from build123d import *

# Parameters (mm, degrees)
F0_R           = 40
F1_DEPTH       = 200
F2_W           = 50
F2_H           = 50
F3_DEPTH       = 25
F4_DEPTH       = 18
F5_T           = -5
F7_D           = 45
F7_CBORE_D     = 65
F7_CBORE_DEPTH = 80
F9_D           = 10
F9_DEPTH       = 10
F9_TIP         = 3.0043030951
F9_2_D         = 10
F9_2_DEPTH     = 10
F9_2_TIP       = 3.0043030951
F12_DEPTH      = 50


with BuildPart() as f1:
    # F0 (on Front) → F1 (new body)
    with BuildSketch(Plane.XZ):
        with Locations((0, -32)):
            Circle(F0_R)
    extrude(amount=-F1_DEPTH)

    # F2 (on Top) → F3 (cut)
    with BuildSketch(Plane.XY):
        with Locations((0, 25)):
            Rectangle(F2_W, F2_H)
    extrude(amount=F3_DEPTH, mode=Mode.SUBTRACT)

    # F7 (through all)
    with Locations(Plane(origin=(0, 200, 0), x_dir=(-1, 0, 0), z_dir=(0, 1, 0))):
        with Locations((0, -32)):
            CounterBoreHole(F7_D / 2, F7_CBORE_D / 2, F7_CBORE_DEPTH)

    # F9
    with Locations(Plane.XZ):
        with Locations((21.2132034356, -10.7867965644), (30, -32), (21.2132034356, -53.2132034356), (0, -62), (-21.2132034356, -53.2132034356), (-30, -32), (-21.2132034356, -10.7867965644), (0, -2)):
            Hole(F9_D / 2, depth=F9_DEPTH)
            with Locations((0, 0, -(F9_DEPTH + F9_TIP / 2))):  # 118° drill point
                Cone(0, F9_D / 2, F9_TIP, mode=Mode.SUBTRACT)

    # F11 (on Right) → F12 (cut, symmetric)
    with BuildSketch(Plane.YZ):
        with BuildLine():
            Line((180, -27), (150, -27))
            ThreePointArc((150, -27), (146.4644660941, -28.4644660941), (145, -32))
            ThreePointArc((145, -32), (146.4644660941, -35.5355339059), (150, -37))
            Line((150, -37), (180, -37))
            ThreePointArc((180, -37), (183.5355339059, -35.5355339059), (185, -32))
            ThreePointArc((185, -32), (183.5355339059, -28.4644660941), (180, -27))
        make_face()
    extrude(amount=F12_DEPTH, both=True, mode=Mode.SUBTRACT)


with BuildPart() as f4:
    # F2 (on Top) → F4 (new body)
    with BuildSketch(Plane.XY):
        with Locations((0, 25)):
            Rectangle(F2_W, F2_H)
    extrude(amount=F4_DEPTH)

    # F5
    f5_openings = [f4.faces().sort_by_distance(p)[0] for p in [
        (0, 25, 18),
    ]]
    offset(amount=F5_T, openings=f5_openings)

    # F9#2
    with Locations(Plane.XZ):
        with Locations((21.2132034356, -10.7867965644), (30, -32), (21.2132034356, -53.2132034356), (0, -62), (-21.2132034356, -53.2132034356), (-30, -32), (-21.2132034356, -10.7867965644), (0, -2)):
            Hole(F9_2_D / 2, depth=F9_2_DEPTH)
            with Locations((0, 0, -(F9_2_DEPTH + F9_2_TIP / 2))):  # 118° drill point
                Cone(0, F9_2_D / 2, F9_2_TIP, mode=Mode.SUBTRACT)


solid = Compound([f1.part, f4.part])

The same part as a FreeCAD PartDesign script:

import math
import FreeCAD as App
import Part
import Sketcher
Q = App.Units.Quantity


def faces_at(feature, points):
    """Names of the faces that lie closest to the given points."""
    faces = feature.Shape.Faces
    near = lambda p: min(range(len(faces)), key=lambda i: faces[i].distToShape(Part.Vertex(*p))[0])
    return sorted({f"Face{near(p) + 1}" for p in points})


def add_polygon(sketch, points):
    """Adds a closed chain of lines whose ends are joined by coincident constraints."""
    first, n = sketch.GeometryCount, len(points)
    for a, b in zip(points, points[1:] + points[:1]):
        sketch.addGeometry(Part.LineSegment(App.Vector(*a, 0), App.Vector(*b, 0)), False)
    for i in range(n):
        sketch.addConstraint(Sketcher.Constraint("Coincident", first + i, 2, first + (i + 1) % n, 1))

doc = App.newDocument("Part")
params = doc.addObject("Spreadsheet::Sheet", "Params")
for row, (alias, value) in enumerate([
    ("sketch1_diameter", "80 mm"),
    ("pad1_length", "200 mm"),
    ("sketch2_width", "50 mm"),
    ("pocket1_length", "25 mm"),
    ("sketch3_diameter", "45 mm"),
    ("hole_diameter", "45 mm"),
    ("hole_cbore_diameter", "65 mm"),
    ("hole_cbore_depth", "80 mm"),
    ("sketch4_diameter", "10 mm"),
    ("hole2_diameter", "10 mm"),
    ("hole2_depth", "10 mm"),
    ("sketch5_radius", "5 mm"),
    ("sketch5_width", "30 mm"),
    ("pocket2_length", "100 mm"),
    ("sketch6_width", "50 mm"),
    ("pad2_length", "18 mm"),
    ("thickness_wall", "5 mm"),
    ("sketch7_diameter", "10 mm"),
    ("hole3_diameter", "10 mm"),
    ("hole3_depth", "10 mm"),
], start=1):
    params.set(f"A{row}", alias)
    params.set(f"B{row}", "=" + value)
    params.setAlias(f"B{row}", alias)

body = doc.addObject("PartDesign::Body", "Body")

# Sketch on XZ plane
sketch1 = doc.addObject("Sketcher::SketchObject", "Sketch")
body.addObject(sketch1)
sketch1.AttachmentSupport = (doc.XZ_Plane, [""])
sketch1.MapMode = "FlatFace"
sketch1.addGeometry(Part.Circle(App.Vector(0, -32, 0), App.Vector(0, 0, 1), 40), False)
sketch1.addConstraint([
    Sketcher.Constraint("PointOnObject", 0, 3, -2),
    Sketcher.Constraint("Diameter", 0, Q("80 mm")),
    Sketcher.Constraint("DistanceY", 0, 3, -1, 1, Q("32 mm")),
])
sketch1.setExpression("Constraints[1]", "Params.sketch1_diameter")
pad1 = doc.addObject("PartDesign::Pad", "Pad")
body.addObject(pad1)
pad1.Profile = sketch1
pad1.setExpression("Length", "Params.pad1_length")
pad1.Reversed = True

# Sketch on XY plane
sketch2 = doc.addObject("Sketcher::SketchObject", "Sketch001")
body.addObject(sketch2)
sketch2.AttachmentSupport = (doc.XY_Plane, [""])
sketch2.MapMode = "FlatFace"
add_polygon(sketch2, [(-25, 50), (-25, 0), (25, 0), (25, 50)])  # lines 0-3
sketch2.addConstraint([
    Sketcher.Constraint("Vertical", 0),
    Sketcher.Constraint("Horizontal", 1),
    Sketcher.Constraint("Vertical", 2),
    Sketcher.Constraint("Horizontal", 3),
    Sketcher.Constraint("Symmetric", 0, 2, 1, 2, -1, 1),
    Sketcher.Constraint("Equal", 3, 0),
    Sketcher.Constraint("DistanceX", 1, 1, 1, 2, Q("50 mm")),
])
sketch2.setExpression("Constraints[10]", "Params.sketch2_width")
pocket1 = doc.addObject("PartDesign::Pocket", "Pocket")
body.addObject(pocket1)
pocket1.Profile = sketch2
pocket1.setExpression("Length", "Params.pocket1_length")
pocket1.Reversed = True

# Sketch on XZ plane
sketch3 = doc.addObject("Sketcher::SketchObject", "Sketch002")
body.addObject(sketch3)
sketch3.AttachmentSupport = (doc.XZ_Plane, [""])
sketch3.MapMode = "FlatFace"
sketch3.AttachmentOffset = App.Placement(App.Vector(0, 0, -200), App.Rotation())
sketch3.addGeometry(Part.Circle(App.Vector(0, -32, 0), App.Vector(0, 0, 1), 22), False)
sketch3.addConstraint([
    Sketcher.Constraint("PointOnObject", 0, 3, -2),
    Sketcher.Constraint("Diameter", 0, Q("45 mm")),
    Sketcher.Constraint("DistanceY", 0, 3, -1, 1, Q("32 mm")),
])
sketch3.setExpression("Constraints[1]", "Params.sketch3_diameter")
doc.recompute()
hole = doc.addObject("PartDesign::Hole", "Hole")
body.addObject(hole)
hole.Profile = sketch3
hole.ThreadType = "None"
hole.setExpression("Diameter", "Params.hole_diameter")
hole.DepthType = "ThroughAll"
hole.HoleCutType = "Counterbore"
hole.setExpression("HoleCutDiameter", "Params.hole_cbore_diameter")
hole.setExpression("HoleCutDepth", "Params.hole_cbore_depth")
hole.Reversed = True

# Sketch on XZ plane
sketch4 = doc.addObject("Sketcher::SketchObject", "Sketch003")
body.addObject(sketch4)
sketch4.AttachmentSupport = (doc.XZ_Plane, [""])
sketch4.MapMode = "FlatFace"
sketch4.addGeometry([
    Part.Circle(App.Vector(21, -11, 0), App.Vector(0, 0, 1), 5),  # 0
    Part.Circle(App.Vector(30, -32, 0), App.Vector(0, 0, 1), 5),  # 1
    Part.Circle(App.Vector(21, -53, 0), App.Vector(0, 0, 1), 5),  # 2
    Part.Circle(App.Vector(0, -62, 0), App.Vector(0, 0, 1), 5),  # 3
    Part.Circle(App.Vector(-21, -53, 0), App.Vector(0, 0, 1), 5),  # 4
    Part.Circle(App.Vector(-30, -32, 0), App.Vector(0, 0, 1), 5),  # 5
    Part.Circle(App.Vector(-21, -11, 0), App.Vector(0, 0, 1), 5),  # 6
    Part.Circle(App.Vector(0, -2, 0), App.Vector(0, 0, 1), 5),  # 7
], False)
sketch4.addConstraint([
    Sketcher.Constraint("Equal", 0, 1),
    Sketcher.Constraint("Equal", 1, 2),
    Sketcher.Constraint("Equal", 2, 3),
    Sketcher.Constraint("Equal", 3, 4),
    Sketcher.Constraint("Equal", 4, 5),
    Sketcher.Constraint("Equal", 5, 6),
    Sketcher.Constraint("Equal", 6, 7),
    Sketcher.Constraint("Symmetric", 2, 3, 4, 3, -2),
    Sketcher.Constraint("Symmetric", 1, 3, 5, 3, -2),
    Sketcher.Constraint("Symmetric", 0, 3, 6, 3, -2),
    Sketcher.Constraint("PointOnObject", 3, 3, -2),
    Sketcher.Constraint("PointOnObject", 7, 3, -2),
    Sketcher.Constraint("Vertical", 0, 3, 2, 3),
    Sketcher.Constraint("Diameter", 0, Q("10 mm")),
    Sketcher.Constraint("DistanceX", -1, 1, 1, 3, Q("30 mm")),
    Sketcher.Constraint("DistanceY", 1, 3, -1, 1, Q("32 mm")),
    Sketcher.Constraint("DistanceY", 3, 3, -1, 1, Q("62 mm")),
    Sketcher.Constraint("DistanceY", 7, 3, -1, 1, Q("2 mm")),
    Sketcher.Constraint("DistanceX", -1, 1, 0, 3, Q("21.213203 mm")),
    Sketcher.Constraint("DistanceY", 0, 3, -1, 1, Q("10.786797 mm")),
    Sketcher.Constraint("DistanceY", 2, 3, -1, 1, Q("53.213203 mm")),
])
sketch4.setExpression("Constraints[13]", "Params.sketch4_diameter")
doc.recompute()
hole2 = doc.addObject("PartDesign::Hole", "Hole001")
body.addObject(hole2)
hole2.Profile = sketch4
hole2.ThreadType = "None"
hole2.setExpression("Diameter", "Params.hole2_diameter")
hole2.DepthType = "Dimension"
hole2.setExpression("Depth", "Params.hole2_depth")
hole2.DrillPoint = "Angled"
hole2.DrillPointAngle = 118

# Sketch on YZ plane
sketch5 = doc.addObject("Sketcher::SketchObject", "Sketch004")
body.addObject(sketch5)
sketch5.AttachmentSupport = (doc.YZ_Plane, [""])
sketch5.MapMode = "FlatFace"
sketch5.addGeometry([
    Part.LineSegment(App.Vector(180, -27, 0), App.Vector(150, -27, 0)),  # 0
    Part.ArcOfCircle(Part.Circle(App.Vector(150, -32, 0), App.Vector(0, 0, 1), 5), math.radians(90), math.radians(180)),  # 1
    Part.ArcOfCircle(Part.Circle(App.Vector(150, -32, 0), App.Vector(0, 0, 1), 5), math.radians(180), math.radians(270)),  # 2
    Part.LineSegment(App.Vector(150, -37, 0), App.Vector(180, -37, 0)),  # 3
    Part.ArcOfCircle(Part.Circle(App.Vector(180, -32, 0), App.Vector(0, 0, 1), 5), math.radians(-90), math.radians(0)),  # 4
    Part.ArcOfCircle(Part.Circle(App.Vector(180, -32, 0), App.Vector(0, 0, 1), 5), math.radians(0), math.radians(90)),  # 5
], False)
sketch5.addConstraint([
    Sketcher.Constraint("Tangent", 0, 2, 1, 1),
    Sketcher.Constraint("Tangent", 1, 2, 2, 1),
    Sketcher.Constraint("Tangent", 2, 2, 3, 1),
    Sketcher.Constraint("Tangent", 3, 2, 4, 1),
    Sketcher.Constraint("Tangent", 4, 2, 5, 1),
    Sketcher.Constraint("Tangent", 5, 2, 0, 1),
    Sketcher.Constraint("Horizontal", 0),
    Sketcher.Constraint("Horizontal", 3),
    Sketcher.Constraint("Equal", 1, 2),
    Sketcher.Constraint("Equal", 2, 4),
    Sketcher.Constraint("Horizontal", 5, 3, 1, 2),
    Sketcher.Constraint("Horizontal", 1, 2, 4, 2),
    Sketcher.Constraint("Radius", 1, Q("5 mm")),
    Sketcher.Constraint("DistanceX", 0, 2, 0, 1, Q("30 mm")),
    Sketcher.Constraint("DistanceX", -1, 1, 1, 3, Q("150 mm")),
    Sketcher.Constraint("DistanceY", 1, 3, -1, 1, Q("32 mm")),
])
sketch5.setExpression("Constraints[12]", "Params.sketch5_radius")
sketch5.setExpression("Constraints[13]", "Params.sketch5_width")
pocket2 = doc.addObject("PartDesign::Pocket", "Pocket001")
body.addObject(pocket2)
pocket2.Profile = sketch5
pocket2.setExpression("Length", "Params.pocket2_length")
pocket2.Midplane = True
body2 = doc.addObject("PartDesign::Body", "Body001")

# Sketch on XY plane
sketch6 = doc.addObject("Sketcher::SketchObject", "Sketch005")
body2.addObject(sketch6)
sketch6.AttachmentSupport = (doc.getObject("XY_Plane001"), [""])
sketch6.MapMode = "FlatFace"
add_polygon(sketch6, [(-25, 50), (-25, 0), (25, 0), (25, 50)])  # lines 0-3
sketch6.addConstraint([
    Sketcher.Constraint("Vertical", 0),
    Sketcher.Constraint("Horizontal", 1),
    Sketcher.Constraint("Vertical", 2),
    Sketcher.Constraint("Horizontal", 3),
    Sketcher.Constraint("Symmetric", 0, 2, 1, 2, -1, 1),
    Sketcher.Constraint("Equal", 3, 0),
    Sketcher.Constraint("DistanceX", 1, 1, 1, 2, Q("50 mm")),
])
sketch6.setExpression("Constraints[10]", "Params.sketch6_width")
pad2 = doc.addObject("PartDesign::Pad", "Pad001")
body2.addObject(pad2)
pad2.Profile = sketch6
pad2.setExpression("Length", "Params.pad2_length")
doc.recompute()

thickness = doc.addObject("PartDesign::Thickness", "Thickness")
body2.addObject(thickness)
thickness.Base = (pad2, faces_at(pad2, [(0, 25, 18)]))
thickness.setExpression("Value", "Params.thickness_wall")
thickness.Reversed = True
thickness.Join = "Arc"

# Sketch on XZ plane
sketch7 = doc.addObject("Sketcher::SketchObject", "Sketch006")
body2.addObject(sketch7)
sketch7.AttachmentSupport = (doc.getObject("XZ_Plane001"), [""])
sketch7.MapMode = "FlatFace"
sketch7.addGeometry([
    Part.Circle(App.Vector(21, -11, 0), App.Vector(0, 0, 1), 5),  # 0
    Part.Circle(App.Vector(30, -32, 0), App.Vector(0, 0, 1), 5),  # 1
    Part.Circle(App.Vector(21, -53, 0), App.Vector(0, 0, 1), 5),  # 2
    Part.Circle(App.Vector(0, -62, 0), App.Vector(0, 0, 1), 5),  # 3
    Part.Circle(App.Vector(-21, -53, 0), App.Vector(0, 0, 1), 5),  # 4
    Part.Circle(App.Vector(-30, -32, 0), App.Vector(0, 0, 1), 5),  # 5
    Part.Circle(App.Vector(-21, -11, 0), App.Vector(0, 0, 1), 5),  # 6
    Part.Circle(App.Vector(0, -2, 0), App.Vector(0, 0, 1), 5),  # 7
], False)
sketch7.addConstraint([
    Sketcher.Constraint("Equal", 0, 1),
    Sketcher.Constraint("Equal", 1, 2),
    Sketcher.Constraint("Equal", 2, 3),
    Sketcher.Constraint("Equal", 3, 4),
    Sketcher.Constraint("Equal", 4, 5),
    Sketcher.Constraint("Equal", 5, 6),
    Sketcher.Constraint("Equal", 6, 7),
    Sketcher.Constraint("Symmetric", 2, 3, 4, 3, -2),
    Sketcher.Constraint("Symmetric", 1, 3, 5, 3, -2),
    Sketcher.Constraint("Symmetric", 0, 3, 6, 3, -2),
    Sketcher.Constraint("PointOnObject", 3, 3, -2),
    Sketcher.Constraint("PointOnObject", 7, 3, -2),
    Sketcher.Constraint("Vertical", 0, 3, 2, 3),
    Sketcher.Constraint("Diameter", 0, Q("10 mm")),
    Sketcher.Constraint("DistanceX", -1, 1, 1, 3, Q("30 mm")),
    Sketcher.Constraint("DistanceY", 1, 3, -1, 1, Q("32 mm")),
    Sketcher.Constraint("DistanceY", 3, 3, -1, 1, Q("62 mm")),
    Sketcher.Constraint("DistanceY", 7, 3, -1, 1, Q("2 mm")),
    Sketcher.Constraint("DistanceX", -1, 1, 0, 3, Q("21.213203 mm")),
    Sketcher.Constraint("DistanceY", 0, 3, -1, 1, Q("10.786797 mm")),
    Sketcher.Constraint("DistanceY", 2, 3, -1, 1, Q("53.213203 mm")),
])
sketch7.setExpression("Constraints[13]", "Params.sketch7_diameter")
doc.recompute()
hole3 = doc.addObject("PartDesign::Hole", "Hole002")
body2.addObject(hole3)
hole3.Profile = sketch7
hole3.ThreadType = "None"
hole3.setExpression("Diameter", "Params.hole3_diameter")
hole3.DepthType = "Dimension"
hole3.setExpression("Depth", "Params.hole3_depth")
hole3.DrillPoint = "Angled"
hole3.DrillPointAngle = 118

doc.recompute()
